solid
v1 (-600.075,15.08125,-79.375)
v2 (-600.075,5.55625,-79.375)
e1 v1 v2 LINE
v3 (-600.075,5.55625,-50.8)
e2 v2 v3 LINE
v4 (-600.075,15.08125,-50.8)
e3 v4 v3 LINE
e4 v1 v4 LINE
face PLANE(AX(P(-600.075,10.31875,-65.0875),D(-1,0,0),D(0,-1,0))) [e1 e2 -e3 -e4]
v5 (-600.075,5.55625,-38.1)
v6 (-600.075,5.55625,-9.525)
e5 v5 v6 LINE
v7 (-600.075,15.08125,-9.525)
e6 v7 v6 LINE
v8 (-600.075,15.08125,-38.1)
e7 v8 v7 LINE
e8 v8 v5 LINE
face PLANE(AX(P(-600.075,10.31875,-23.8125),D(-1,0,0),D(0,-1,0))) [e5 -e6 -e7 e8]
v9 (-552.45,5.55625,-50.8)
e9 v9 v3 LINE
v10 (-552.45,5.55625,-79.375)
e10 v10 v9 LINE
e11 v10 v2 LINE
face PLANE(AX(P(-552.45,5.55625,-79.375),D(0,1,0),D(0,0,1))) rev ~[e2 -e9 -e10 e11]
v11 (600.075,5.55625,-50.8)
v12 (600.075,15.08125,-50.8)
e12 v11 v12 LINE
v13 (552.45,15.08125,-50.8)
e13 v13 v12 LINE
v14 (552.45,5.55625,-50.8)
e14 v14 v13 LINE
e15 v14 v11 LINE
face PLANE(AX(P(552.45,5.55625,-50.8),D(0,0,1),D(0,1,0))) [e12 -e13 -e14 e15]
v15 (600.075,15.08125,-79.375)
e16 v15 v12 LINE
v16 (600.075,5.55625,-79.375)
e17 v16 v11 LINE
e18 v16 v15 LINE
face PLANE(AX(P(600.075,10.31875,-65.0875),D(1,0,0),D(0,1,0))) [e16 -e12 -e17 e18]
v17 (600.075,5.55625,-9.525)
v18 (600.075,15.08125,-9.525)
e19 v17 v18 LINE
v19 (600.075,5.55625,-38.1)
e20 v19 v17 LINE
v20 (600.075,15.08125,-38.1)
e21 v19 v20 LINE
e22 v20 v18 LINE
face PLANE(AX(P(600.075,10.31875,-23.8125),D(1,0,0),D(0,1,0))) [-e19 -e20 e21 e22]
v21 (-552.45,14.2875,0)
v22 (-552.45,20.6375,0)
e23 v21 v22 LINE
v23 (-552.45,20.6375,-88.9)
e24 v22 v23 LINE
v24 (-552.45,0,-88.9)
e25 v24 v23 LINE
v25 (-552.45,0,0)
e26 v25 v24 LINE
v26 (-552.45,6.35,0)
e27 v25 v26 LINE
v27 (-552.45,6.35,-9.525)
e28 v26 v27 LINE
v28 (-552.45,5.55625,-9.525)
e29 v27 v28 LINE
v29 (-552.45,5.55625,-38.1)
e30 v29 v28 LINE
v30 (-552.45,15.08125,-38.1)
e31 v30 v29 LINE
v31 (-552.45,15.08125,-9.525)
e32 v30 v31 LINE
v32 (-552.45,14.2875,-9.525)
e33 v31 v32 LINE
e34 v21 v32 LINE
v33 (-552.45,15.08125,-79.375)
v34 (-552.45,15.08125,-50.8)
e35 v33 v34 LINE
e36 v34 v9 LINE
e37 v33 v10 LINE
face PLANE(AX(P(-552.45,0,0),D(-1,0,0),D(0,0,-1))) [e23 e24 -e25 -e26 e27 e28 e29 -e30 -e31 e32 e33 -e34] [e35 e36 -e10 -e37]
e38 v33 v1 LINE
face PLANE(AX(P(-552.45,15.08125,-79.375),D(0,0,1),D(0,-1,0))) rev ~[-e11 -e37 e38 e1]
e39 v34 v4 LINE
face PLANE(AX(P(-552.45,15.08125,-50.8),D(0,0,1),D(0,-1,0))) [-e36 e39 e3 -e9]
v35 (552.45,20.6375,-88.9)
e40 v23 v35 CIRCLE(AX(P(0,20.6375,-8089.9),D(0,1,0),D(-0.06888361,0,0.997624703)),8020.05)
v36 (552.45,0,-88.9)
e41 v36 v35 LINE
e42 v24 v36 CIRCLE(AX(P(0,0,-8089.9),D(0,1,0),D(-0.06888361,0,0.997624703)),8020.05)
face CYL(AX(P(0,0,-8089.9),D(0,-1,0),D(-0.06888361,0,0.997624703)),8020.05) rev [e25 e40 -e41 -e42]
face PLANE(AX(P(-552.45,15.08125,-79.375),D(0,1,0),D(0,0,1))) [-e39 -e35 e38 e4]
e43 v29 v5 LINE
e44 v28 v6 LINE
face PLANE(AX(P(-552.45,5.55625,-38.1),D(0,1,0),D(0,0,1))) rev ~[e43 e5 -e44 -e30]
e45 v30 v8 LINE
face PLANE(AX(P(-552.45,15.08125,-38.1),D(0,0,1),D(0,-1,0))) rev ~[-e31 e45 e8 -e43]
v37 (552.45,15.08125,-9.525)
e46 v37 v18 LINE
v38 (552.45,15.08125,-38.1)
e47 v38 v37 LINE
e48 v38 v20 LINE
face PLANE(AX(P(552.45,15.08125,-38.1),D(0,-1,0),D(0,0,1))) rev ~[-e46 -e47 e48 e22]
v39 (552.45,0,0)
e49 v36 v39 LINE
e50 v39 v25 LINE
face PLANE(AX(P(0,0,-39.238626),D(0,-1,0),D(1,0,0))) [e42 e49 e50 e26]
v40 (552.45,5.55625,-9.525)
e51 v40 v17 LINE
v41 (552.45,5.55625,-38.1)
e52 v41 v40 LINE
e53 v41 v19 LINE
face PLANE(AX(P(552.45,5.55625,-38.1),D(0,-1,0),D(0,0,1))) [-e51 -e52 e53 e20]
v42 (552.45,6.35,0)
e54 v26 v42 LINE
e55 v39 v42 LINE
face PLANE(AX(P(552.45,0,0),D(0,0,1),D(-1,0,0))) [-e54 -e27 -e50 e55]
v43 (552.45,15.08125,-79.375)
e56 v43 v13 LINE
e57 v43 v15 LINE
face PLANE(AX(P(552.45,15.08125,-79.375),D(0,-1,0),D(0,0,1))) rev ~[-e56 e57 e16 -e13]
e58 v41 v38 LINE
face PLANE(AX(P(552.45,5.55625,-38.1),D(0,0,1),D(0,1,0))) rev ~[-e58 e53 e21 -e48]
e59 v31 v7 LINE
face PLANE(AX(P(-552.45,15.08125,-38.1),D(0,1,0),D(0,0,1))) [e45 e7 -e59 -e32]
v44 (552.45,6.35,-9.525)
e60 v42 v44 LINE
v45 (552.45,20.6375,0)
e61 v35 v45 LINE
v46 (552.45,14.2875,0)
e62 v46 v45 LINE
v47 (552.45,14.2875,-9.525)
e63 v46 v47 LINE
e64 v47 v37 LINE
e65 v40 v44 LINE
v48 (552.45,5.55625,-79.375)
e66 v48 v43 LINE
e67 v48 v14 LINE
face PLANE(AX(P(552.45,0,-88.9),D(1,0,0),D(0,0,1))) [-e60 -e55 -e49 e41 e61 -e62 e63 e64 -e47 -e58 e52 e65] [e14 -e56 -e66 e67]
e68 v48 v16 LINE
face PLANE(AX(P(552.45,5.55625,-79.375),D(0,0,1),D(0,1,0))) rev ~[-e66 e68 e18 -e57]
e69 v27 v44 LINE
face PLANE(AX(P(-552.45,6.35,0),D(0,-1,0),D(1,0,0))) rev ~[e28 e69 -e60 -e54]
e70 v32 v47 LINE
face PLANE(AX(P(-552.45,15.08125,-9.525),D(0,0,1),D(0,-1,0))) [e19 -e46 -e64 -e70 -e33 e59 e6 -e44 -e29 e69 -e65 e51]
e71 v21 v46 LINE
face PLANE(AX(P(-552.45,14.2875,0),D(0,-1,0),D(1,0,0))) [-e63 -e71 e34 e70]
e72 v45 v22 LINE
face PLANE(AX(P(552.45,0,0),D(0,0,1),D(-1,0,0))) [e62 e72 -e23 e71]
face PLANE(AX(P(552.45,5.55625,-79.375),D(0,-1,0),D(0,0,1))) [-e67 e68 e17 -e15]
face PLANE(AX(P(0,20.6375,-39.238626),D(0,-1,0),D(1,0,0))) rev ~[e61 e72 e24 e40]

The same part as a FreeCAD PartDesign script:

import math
import FreeCAD as App
import Part
import Sketcher
Q = App.Units.Quantity


def add_polygon(sketch, points):
    """Adds a closed chain of lines whose ends are joined by coincident constraints."""
    first, n = sketch.GeometryCount, len(points)
    for a, b in zip(points, points[1:] + points[:1]):
        sketch.addGeometry(Part.LineSegment(App.Vector(*a, 0), App.Vector(*b, 0)), False)
    for i in range(n):
        sketch.addConstraint(Sketcher.Constraint("Coincident", first + i, 2, first + (i + 1) % n, 1))

doc = App.newDocument("Part")
body = doc.addObject("PartDesign::Body", "Body")

# Sketch on XZ plane
sketch1 = body.newObject("Sketcher::SketchObject", "Sketch")
sketch1.AttachmentSupport = (doc.getObject("XZ_Plane"), [""])
sketch1.MapMode = "FlatFace"
sketch1.addGeometry([
    Part.LineSegment(App.Vector(552.45, 0, 0), App.Vector(-552.45, 0, 0)),
    Part.LineSegment(App.Vector(-552.45, 0, 0), App.Vector(-552.45, -88.9, 0)),
    Part.ArcOfCircle(Part.Circle(App.Vector(0, -8089.9, 0), App.Vector(0, 0, 1), 8020.05), math.radians(86.050132), math.radians(93.949868)),
    Part.LineSegment(App.Vector(552.45, -88.9, 0), App.Vector(552.45, 0, 0)),
], False)
sketch1.addConstraint([
    Sketcher.Constraint("Coincident", 0, 2, 1, 1),
    Sketcher.Constraint("Coincident", 1, 2, 2, 2),
    Sketcher.Constraint("Coincident", 2, 1, 3, 1),
    Sketcher.Constraint("Coincident", 3, 2, 0, 1),
    Sketcher.Constraint("Horizontal", 0),
    Sketcher.Constraint("Vertical", 1),
    Sketcher.Constraint("Vertical", 3),
    Sketcher.Constraint("Symmetric", 0, 2, 3, 2, -1, 1),
    Sketcher.Constraint("PointOnObject", 2, 3, -2),
    Sketcher.Constraint("Radius", 2, Q("315.75 in")),
    Sketcher.Constraint("DistanceX", 0, 2, 0, 1, Q("43.5 in")),
    Sketcher.Constraint("DistanceY", 1, 2, 1, 1, Q("3.5 in")),
])
pad1 = body.newObject("PartDesign::Pad", "Pad")
pad1.Profile = sketch1
pad1.Length = Q("0.8125 in")
pad1.Reversed = True

# Sketch on YZ plane
sketch2 = body.newObject("Sketcher::SketchObject", "Sketch001")
sketch2.AttachmentSupport = (doc.getObject("YZ_Plane"), [""])
sketch2.MapMode = "FlatFace"
sketch2.AttachmentOffset = App.Placement(App.Vector(0, 0, -21.75 * 25.4), App.Rotation())
add_polygon(sketch2, [(15.08125, -9.525), (15.08125, -38.1), (5.55625, -38.1), (5.55625, -9.525)])  # lines 0-3
add_polygon(sketch2, [(15.08125, -50.8), (15.08125, -79.375), (5.55625, -79.375), (5.55625, -50.8)])  # lines 4-7
sketch2.addConstraint([
    Sketcher.Constraint("Vertical", 0),
    Sketcher.Constraint("Horizontal", 1),
    Sketcher.Constraint("Vertical", 2),
    Sketcher.Constraint("Horizontal", 3),
    Sketcher.Constraint("Vertical", 4),
    Sketcher.Constraint("Horizontal", 5),
    Sketcher.Constraint("Vertical", 6),
    Sketcher.Constraint("Horizontal", 7),
    Sketcher.Constraint("Vertical", 3, 2, 4, 2),
    Sketcher.Constraint("Vertical", 2, 2, 5, 2),
    Sketcher.Constraint("Equal", 2, 4),
    Sketcher.Constraint("DistanceY", 6, 2, -1, 1, Q("2 in")),
    Sketcher.Constraint("DistanceY", 0, 2, -1, 1, Q("1.5 in")),
    Sketcher.Constraint("DistanceX", 1, 2, 1, 1, Q("0.375 in")),
    Sketcher.Constraint("DistanceY", 0, 2, 0, 1, Q("1.125 in")),
    Sketcher.Constraint("DistanceX", -1, 1, 0, 2, Q("0.59375 in")),
])
pad2 = body.newObject("PartDesign::Pad", "Pad001")
pad2.Profile = sketch2
pad2.Length = Q("1.875 in")
pad2.Reversed = True

# Sketch on YZ plane
sketch3 = body.newObject("Sketcher::SketchObject", "Sketch002")
sketch3.AttachmentSupport = (doc.getObject("YZ_Plane"), [""])
sketch3.MapMode = "FlatFace"
sketch3.AttachmentOffset = App.Placement(App.Vector(0, 0, 21.75 * 25.4), App.Rotation())
add_polygon(sketch3, [(5.55625, -9.525), (5.55625, -38.1), (15.08125, -38.1), (15.08125, -9.525)])  # lines 0-3
add_polygon(sketch3, [(5.55625, -50.8), (5.55625, -79.375), (15.08125, -79.375), (15.08125, -50.8)])  # lines 4-7
sketch3.addConstraint([
    Sketcher.Constraint("Vertical", 0),
    Sketcher.Constraint("Horizontal", 1),
    Sketcher.Constraint("Vertical", 2),
    Sketcher.Constraint("Horizontal", 3),
    Sketcher.Constraint("Vertical", 4),
    Sketcher.Constraint("Horizontal", 5),
    Sketcher.Constraint("Vertical", 6),
    Sketcher.Constraint("Horizontal", 7),
    Sketcher.Constraint("Vertical", 3, 2, 4, 2),
    Sketcher.Constraint("Vertical", 2, 2, 5, 2),
    Sketcher.Constraint("Equal", 2, 4),
    Sketcher.Constraint("DistanceY", 6, 2, -1, 1, Q("2 in")),
    Sketcher.Constraint("DistanceY", 0, 2, -1, 1, Q("1.5 in")),
    Sketcher.Constraint("DistanceX", 1, 1, 1, 2, Q("0.375 in")),
    Sketcher.Constraint("DistanceY", 0, 2, 0, 1, Q("1.125 in")),
    Sketcher.Constraint("DistanceX", -1, 1, 0, 2, Q("0.21875 in")),
])
pad3 = body.newObject("PartDesign::Pad", "Pad002")
pad3.Profile = sketch3
pad3.Length = Q("1.875 in")

# Sketch on XY plane
sketch4 = body.newObject("Sketcher::SketchObject", "Sketch003")
sketch4.AttachmentSupport = (doc.getObject("XY_Plane"), [""])
sketch4.MapMode = "FlatFace"
add_polygon(sketch4, [(-552.45, 14.2875), (-552.45, 6.35), (552.45, 6.35), (552.45, 14.2875)])  # lines 0-3
sketch4.addConstraint([
    Sketcher.Constraint("Vertical", 0),
    Sketcher.Constraint("Horizontal", 1),
    Sketcher.Constraint("Vertical", 2),
    Sketcher.Constraint("Horizontal", 3),
    Sketcher.Constraint("DistanceX", 1, 1, 1, 2, Q("43.5 in")),
    Sketcher.Constraint("DistanceY", 0, 2, 0, 1, Q("0.3125 in")),
    Sketcher.Constraint("DistanceX", 0, 2, -1, 1, Q("21.75 in")),
    Sketcher.Constraint("DistanceY", -1, 1, 0, 2, Q("0.25 in")),
])
pocket1 = body.newObject("PartDesign::Pocket", "Pocket")
pocket1.Profile = sketch4
pocket1.Length = Q("0.375 in")

doc.recompute()
